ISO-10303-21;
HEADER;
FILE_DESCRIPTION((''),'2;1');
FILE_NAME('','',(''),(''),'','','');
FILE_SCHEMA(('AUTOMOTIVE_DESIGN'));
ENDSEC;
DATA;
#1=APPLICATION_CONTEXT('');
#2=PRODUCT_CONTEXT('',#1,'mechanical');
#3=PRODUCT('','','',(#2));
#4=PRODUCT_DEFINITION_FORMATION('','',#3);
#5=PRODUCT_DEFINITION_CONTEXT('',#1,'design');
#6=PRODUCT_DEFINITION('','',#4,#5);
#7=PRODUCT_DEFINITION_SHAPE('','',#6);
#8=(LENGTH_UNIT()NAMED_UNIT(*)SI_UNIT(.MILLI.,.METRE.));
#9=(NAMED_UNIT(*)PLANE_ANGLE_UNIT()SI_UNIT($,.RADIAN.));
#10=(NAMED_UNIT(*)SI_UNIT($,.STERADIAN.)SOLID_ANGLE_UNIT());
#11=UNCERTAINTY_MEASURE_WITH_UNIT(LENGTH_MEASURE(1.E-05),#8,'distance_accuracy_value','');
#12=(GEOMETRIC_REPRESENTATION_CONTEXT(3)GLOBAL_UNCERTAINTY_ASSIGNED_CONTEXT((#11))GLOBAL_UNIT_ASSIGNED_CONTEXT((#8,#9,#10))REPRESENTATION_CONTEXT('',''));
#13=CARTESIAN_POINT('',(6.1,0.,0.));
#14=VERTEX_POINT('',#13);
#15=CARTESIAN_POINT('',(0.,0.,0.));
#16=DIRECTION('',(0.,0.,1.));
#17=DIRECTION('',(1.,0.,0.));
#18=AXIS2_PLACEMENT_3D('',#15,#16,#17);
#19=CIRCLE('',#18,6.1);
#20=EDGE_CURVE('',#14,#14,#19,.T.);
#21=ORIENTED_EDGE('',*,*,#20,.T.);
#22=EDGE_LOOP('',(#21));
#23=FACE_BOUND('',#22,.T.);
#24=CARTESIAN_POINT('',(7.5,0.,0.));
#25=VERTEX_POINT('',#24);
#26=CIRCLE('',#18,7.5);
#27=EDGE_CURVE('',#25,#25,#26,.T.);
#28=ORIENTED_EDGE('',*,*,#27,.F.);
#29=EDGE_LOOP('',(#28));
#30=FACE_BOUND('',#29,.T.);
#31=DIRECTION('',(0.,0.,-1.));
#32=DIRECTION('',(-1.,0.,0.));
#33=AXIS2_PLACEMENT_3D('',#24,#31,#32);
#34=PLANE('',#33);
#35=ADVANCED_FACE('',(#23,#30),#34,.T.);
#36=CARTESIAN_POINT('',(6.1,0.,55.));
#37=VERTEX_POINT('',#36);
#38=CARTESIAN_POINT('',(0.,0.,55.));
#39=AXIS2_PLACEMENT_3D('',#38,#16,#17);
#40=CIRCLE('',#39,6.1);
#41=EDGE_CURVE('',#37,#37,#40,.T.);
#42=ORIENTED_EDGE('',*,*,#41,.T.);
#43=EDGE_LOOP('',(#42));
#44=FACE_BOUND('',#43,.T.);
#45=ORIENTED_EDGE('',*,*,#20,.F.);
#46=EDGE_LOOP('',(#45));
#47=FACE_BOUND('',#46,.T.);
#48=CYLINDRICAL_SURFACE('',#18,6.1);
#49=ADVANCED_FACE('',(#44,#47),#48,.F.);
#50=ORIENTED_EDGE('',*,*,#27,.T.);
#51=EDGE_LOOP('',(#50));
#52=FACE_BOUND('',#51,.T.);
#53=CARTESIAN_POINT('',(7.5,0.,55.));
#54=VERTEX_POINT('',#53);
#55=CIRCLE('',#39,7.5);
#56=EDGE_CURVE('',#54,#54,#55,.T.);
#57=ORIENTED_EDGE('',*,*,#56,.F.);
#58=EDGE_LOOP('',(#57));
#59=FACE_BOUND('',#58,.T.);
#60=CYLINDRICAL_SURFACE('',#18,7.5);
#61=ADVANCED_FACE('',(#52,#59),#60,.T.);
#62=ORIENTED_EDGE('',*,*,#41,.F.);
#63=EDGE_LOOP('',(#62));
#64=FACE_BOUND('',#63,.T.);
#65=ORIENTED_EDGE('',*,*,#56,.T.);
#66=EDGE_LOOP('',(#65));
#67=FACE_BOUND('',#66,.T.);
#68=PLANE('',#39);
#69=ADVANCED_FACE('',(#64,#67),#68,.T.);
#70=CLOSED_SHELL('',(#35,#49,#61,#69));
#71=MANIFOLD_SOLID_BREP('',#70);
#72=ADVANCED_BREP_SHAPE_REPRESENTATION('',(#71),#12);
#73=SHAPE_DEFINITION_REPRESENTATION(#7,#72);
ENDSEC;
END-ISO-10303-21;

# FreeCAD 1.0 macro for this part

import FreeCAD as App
import Part
import Sketcher

V = App.Vector
Q = App.Units.Quantity


def add_polygon(sketch, points):
    """Adds a closed chain of lines whose ends are joined by coincident constraints."""
    first, n = sketch.GeometryCount, len(points)
    for a, b in zip(points, points[1:] + points[:1]):
        sketch.addGeometry(Part.LineSegment(App.Vector(*a, 0), App.Vector(*b, 0)), False)
    for i in range(n):
        sketch.addConstraint(Sketcher.Constraint("Coincident", first + i, 2, first + (i + 1) % n, 1))

doc = App.newDocument("Part")
params = doc.addObject("Spreadsheet::Sheet", "Params")
for row, (alias, value) in enumerate([
    ("sketch1_height", "200 mm"),
    ("sketch1_width", "1.4 mm"),
    ("revolution_angle", "360 deg"),
    ("sketch2_diameter", "15 mm"),
    ("pocket1_length", "145 mm"),
], start=1):
    params.set(f"A{row}", alias)
    params.set(f"B{row}", "=" + value)
    params.setAlias(f"B{row}", alias)

body = doc.addObject("PartDesign::Body", "Body")

sketch1 = body.newObject("Sketcher::SketchObject", "Sketch")
sketch1.AttachmentSupport = (doc.getObject("XZ_Plane"), [""])
sketch1.MapMode = "FlatFace"
add_polygon(sketch1, [(6.1, 0), (6.1, 200), (7.5, 200), (7.5, 0)])
sketch1.addConstraint([
    Sketcher.Constraint("Vertical", 0),
    Sketcher.Constraint("Horizontal", 1),
    Sketcher.Constraint("Vertical", 2),
    Sketcher.Constraint("Horizontal", 3),
    Sketcher.Constraint("PointOnObject", 2, 2, -1),
    Sketcher.Constraint("DistanceY", 0, 1, 0, 2, Q("200 mm")),
    Sketcher.Constraint("DistanceX", 1, 1, 1, 2, Q("1.4 mm")),
    Sketcher.Constraint("DistanceX", -1, 1, 0, 2, Q("6.1 mm")),
])
sketch1.setExpression("Constraints[9]", "Params.sketch1_height")
sketch1.setExpression("Constraints[10]", "Params.sketch1_width")
revolution = body.newObject("PartDesign::Revolution", "Revolution")
revolution.Profile = sketch1
revolution.ReferenceAxis = (sketch1, ["V_Axis"])
revolution.setExpression("Angle", "Params.revolution_angle")

sketch2 = body.newObject("Sketcher::SketchObject", "Sketch001")
sketch2.AttachmentSupport = (doc.getObject("XY_Plane"), [""])
sketch2.MapMode = "FlatFace"
sketch2.AttachmentOffset = App.Placement(V(0, 0, 55), App.Rotation())
sketch2.addGeometry(Part.Circle(V(0, 0, 0), V(0, 0, 1), 8), False)
sketch2.addConstraint([
    Sketcher.Constraint("Coincident", 0, 3, -1, 1),
    Sketcher.Constraint("Diameter", 0, Q("15 mm")),
])
sketch2.setExpression("Constraints[1]", "Params.sketch2_diameter")
pocket1 = body.newObject("PartDesign::Pocket", "Pocket")
pocket1.Profile = sketch2
pocket1.setExpression("Length", "Params.pocket1_length")
pocket1.Reversed = True

doc.recompute()
